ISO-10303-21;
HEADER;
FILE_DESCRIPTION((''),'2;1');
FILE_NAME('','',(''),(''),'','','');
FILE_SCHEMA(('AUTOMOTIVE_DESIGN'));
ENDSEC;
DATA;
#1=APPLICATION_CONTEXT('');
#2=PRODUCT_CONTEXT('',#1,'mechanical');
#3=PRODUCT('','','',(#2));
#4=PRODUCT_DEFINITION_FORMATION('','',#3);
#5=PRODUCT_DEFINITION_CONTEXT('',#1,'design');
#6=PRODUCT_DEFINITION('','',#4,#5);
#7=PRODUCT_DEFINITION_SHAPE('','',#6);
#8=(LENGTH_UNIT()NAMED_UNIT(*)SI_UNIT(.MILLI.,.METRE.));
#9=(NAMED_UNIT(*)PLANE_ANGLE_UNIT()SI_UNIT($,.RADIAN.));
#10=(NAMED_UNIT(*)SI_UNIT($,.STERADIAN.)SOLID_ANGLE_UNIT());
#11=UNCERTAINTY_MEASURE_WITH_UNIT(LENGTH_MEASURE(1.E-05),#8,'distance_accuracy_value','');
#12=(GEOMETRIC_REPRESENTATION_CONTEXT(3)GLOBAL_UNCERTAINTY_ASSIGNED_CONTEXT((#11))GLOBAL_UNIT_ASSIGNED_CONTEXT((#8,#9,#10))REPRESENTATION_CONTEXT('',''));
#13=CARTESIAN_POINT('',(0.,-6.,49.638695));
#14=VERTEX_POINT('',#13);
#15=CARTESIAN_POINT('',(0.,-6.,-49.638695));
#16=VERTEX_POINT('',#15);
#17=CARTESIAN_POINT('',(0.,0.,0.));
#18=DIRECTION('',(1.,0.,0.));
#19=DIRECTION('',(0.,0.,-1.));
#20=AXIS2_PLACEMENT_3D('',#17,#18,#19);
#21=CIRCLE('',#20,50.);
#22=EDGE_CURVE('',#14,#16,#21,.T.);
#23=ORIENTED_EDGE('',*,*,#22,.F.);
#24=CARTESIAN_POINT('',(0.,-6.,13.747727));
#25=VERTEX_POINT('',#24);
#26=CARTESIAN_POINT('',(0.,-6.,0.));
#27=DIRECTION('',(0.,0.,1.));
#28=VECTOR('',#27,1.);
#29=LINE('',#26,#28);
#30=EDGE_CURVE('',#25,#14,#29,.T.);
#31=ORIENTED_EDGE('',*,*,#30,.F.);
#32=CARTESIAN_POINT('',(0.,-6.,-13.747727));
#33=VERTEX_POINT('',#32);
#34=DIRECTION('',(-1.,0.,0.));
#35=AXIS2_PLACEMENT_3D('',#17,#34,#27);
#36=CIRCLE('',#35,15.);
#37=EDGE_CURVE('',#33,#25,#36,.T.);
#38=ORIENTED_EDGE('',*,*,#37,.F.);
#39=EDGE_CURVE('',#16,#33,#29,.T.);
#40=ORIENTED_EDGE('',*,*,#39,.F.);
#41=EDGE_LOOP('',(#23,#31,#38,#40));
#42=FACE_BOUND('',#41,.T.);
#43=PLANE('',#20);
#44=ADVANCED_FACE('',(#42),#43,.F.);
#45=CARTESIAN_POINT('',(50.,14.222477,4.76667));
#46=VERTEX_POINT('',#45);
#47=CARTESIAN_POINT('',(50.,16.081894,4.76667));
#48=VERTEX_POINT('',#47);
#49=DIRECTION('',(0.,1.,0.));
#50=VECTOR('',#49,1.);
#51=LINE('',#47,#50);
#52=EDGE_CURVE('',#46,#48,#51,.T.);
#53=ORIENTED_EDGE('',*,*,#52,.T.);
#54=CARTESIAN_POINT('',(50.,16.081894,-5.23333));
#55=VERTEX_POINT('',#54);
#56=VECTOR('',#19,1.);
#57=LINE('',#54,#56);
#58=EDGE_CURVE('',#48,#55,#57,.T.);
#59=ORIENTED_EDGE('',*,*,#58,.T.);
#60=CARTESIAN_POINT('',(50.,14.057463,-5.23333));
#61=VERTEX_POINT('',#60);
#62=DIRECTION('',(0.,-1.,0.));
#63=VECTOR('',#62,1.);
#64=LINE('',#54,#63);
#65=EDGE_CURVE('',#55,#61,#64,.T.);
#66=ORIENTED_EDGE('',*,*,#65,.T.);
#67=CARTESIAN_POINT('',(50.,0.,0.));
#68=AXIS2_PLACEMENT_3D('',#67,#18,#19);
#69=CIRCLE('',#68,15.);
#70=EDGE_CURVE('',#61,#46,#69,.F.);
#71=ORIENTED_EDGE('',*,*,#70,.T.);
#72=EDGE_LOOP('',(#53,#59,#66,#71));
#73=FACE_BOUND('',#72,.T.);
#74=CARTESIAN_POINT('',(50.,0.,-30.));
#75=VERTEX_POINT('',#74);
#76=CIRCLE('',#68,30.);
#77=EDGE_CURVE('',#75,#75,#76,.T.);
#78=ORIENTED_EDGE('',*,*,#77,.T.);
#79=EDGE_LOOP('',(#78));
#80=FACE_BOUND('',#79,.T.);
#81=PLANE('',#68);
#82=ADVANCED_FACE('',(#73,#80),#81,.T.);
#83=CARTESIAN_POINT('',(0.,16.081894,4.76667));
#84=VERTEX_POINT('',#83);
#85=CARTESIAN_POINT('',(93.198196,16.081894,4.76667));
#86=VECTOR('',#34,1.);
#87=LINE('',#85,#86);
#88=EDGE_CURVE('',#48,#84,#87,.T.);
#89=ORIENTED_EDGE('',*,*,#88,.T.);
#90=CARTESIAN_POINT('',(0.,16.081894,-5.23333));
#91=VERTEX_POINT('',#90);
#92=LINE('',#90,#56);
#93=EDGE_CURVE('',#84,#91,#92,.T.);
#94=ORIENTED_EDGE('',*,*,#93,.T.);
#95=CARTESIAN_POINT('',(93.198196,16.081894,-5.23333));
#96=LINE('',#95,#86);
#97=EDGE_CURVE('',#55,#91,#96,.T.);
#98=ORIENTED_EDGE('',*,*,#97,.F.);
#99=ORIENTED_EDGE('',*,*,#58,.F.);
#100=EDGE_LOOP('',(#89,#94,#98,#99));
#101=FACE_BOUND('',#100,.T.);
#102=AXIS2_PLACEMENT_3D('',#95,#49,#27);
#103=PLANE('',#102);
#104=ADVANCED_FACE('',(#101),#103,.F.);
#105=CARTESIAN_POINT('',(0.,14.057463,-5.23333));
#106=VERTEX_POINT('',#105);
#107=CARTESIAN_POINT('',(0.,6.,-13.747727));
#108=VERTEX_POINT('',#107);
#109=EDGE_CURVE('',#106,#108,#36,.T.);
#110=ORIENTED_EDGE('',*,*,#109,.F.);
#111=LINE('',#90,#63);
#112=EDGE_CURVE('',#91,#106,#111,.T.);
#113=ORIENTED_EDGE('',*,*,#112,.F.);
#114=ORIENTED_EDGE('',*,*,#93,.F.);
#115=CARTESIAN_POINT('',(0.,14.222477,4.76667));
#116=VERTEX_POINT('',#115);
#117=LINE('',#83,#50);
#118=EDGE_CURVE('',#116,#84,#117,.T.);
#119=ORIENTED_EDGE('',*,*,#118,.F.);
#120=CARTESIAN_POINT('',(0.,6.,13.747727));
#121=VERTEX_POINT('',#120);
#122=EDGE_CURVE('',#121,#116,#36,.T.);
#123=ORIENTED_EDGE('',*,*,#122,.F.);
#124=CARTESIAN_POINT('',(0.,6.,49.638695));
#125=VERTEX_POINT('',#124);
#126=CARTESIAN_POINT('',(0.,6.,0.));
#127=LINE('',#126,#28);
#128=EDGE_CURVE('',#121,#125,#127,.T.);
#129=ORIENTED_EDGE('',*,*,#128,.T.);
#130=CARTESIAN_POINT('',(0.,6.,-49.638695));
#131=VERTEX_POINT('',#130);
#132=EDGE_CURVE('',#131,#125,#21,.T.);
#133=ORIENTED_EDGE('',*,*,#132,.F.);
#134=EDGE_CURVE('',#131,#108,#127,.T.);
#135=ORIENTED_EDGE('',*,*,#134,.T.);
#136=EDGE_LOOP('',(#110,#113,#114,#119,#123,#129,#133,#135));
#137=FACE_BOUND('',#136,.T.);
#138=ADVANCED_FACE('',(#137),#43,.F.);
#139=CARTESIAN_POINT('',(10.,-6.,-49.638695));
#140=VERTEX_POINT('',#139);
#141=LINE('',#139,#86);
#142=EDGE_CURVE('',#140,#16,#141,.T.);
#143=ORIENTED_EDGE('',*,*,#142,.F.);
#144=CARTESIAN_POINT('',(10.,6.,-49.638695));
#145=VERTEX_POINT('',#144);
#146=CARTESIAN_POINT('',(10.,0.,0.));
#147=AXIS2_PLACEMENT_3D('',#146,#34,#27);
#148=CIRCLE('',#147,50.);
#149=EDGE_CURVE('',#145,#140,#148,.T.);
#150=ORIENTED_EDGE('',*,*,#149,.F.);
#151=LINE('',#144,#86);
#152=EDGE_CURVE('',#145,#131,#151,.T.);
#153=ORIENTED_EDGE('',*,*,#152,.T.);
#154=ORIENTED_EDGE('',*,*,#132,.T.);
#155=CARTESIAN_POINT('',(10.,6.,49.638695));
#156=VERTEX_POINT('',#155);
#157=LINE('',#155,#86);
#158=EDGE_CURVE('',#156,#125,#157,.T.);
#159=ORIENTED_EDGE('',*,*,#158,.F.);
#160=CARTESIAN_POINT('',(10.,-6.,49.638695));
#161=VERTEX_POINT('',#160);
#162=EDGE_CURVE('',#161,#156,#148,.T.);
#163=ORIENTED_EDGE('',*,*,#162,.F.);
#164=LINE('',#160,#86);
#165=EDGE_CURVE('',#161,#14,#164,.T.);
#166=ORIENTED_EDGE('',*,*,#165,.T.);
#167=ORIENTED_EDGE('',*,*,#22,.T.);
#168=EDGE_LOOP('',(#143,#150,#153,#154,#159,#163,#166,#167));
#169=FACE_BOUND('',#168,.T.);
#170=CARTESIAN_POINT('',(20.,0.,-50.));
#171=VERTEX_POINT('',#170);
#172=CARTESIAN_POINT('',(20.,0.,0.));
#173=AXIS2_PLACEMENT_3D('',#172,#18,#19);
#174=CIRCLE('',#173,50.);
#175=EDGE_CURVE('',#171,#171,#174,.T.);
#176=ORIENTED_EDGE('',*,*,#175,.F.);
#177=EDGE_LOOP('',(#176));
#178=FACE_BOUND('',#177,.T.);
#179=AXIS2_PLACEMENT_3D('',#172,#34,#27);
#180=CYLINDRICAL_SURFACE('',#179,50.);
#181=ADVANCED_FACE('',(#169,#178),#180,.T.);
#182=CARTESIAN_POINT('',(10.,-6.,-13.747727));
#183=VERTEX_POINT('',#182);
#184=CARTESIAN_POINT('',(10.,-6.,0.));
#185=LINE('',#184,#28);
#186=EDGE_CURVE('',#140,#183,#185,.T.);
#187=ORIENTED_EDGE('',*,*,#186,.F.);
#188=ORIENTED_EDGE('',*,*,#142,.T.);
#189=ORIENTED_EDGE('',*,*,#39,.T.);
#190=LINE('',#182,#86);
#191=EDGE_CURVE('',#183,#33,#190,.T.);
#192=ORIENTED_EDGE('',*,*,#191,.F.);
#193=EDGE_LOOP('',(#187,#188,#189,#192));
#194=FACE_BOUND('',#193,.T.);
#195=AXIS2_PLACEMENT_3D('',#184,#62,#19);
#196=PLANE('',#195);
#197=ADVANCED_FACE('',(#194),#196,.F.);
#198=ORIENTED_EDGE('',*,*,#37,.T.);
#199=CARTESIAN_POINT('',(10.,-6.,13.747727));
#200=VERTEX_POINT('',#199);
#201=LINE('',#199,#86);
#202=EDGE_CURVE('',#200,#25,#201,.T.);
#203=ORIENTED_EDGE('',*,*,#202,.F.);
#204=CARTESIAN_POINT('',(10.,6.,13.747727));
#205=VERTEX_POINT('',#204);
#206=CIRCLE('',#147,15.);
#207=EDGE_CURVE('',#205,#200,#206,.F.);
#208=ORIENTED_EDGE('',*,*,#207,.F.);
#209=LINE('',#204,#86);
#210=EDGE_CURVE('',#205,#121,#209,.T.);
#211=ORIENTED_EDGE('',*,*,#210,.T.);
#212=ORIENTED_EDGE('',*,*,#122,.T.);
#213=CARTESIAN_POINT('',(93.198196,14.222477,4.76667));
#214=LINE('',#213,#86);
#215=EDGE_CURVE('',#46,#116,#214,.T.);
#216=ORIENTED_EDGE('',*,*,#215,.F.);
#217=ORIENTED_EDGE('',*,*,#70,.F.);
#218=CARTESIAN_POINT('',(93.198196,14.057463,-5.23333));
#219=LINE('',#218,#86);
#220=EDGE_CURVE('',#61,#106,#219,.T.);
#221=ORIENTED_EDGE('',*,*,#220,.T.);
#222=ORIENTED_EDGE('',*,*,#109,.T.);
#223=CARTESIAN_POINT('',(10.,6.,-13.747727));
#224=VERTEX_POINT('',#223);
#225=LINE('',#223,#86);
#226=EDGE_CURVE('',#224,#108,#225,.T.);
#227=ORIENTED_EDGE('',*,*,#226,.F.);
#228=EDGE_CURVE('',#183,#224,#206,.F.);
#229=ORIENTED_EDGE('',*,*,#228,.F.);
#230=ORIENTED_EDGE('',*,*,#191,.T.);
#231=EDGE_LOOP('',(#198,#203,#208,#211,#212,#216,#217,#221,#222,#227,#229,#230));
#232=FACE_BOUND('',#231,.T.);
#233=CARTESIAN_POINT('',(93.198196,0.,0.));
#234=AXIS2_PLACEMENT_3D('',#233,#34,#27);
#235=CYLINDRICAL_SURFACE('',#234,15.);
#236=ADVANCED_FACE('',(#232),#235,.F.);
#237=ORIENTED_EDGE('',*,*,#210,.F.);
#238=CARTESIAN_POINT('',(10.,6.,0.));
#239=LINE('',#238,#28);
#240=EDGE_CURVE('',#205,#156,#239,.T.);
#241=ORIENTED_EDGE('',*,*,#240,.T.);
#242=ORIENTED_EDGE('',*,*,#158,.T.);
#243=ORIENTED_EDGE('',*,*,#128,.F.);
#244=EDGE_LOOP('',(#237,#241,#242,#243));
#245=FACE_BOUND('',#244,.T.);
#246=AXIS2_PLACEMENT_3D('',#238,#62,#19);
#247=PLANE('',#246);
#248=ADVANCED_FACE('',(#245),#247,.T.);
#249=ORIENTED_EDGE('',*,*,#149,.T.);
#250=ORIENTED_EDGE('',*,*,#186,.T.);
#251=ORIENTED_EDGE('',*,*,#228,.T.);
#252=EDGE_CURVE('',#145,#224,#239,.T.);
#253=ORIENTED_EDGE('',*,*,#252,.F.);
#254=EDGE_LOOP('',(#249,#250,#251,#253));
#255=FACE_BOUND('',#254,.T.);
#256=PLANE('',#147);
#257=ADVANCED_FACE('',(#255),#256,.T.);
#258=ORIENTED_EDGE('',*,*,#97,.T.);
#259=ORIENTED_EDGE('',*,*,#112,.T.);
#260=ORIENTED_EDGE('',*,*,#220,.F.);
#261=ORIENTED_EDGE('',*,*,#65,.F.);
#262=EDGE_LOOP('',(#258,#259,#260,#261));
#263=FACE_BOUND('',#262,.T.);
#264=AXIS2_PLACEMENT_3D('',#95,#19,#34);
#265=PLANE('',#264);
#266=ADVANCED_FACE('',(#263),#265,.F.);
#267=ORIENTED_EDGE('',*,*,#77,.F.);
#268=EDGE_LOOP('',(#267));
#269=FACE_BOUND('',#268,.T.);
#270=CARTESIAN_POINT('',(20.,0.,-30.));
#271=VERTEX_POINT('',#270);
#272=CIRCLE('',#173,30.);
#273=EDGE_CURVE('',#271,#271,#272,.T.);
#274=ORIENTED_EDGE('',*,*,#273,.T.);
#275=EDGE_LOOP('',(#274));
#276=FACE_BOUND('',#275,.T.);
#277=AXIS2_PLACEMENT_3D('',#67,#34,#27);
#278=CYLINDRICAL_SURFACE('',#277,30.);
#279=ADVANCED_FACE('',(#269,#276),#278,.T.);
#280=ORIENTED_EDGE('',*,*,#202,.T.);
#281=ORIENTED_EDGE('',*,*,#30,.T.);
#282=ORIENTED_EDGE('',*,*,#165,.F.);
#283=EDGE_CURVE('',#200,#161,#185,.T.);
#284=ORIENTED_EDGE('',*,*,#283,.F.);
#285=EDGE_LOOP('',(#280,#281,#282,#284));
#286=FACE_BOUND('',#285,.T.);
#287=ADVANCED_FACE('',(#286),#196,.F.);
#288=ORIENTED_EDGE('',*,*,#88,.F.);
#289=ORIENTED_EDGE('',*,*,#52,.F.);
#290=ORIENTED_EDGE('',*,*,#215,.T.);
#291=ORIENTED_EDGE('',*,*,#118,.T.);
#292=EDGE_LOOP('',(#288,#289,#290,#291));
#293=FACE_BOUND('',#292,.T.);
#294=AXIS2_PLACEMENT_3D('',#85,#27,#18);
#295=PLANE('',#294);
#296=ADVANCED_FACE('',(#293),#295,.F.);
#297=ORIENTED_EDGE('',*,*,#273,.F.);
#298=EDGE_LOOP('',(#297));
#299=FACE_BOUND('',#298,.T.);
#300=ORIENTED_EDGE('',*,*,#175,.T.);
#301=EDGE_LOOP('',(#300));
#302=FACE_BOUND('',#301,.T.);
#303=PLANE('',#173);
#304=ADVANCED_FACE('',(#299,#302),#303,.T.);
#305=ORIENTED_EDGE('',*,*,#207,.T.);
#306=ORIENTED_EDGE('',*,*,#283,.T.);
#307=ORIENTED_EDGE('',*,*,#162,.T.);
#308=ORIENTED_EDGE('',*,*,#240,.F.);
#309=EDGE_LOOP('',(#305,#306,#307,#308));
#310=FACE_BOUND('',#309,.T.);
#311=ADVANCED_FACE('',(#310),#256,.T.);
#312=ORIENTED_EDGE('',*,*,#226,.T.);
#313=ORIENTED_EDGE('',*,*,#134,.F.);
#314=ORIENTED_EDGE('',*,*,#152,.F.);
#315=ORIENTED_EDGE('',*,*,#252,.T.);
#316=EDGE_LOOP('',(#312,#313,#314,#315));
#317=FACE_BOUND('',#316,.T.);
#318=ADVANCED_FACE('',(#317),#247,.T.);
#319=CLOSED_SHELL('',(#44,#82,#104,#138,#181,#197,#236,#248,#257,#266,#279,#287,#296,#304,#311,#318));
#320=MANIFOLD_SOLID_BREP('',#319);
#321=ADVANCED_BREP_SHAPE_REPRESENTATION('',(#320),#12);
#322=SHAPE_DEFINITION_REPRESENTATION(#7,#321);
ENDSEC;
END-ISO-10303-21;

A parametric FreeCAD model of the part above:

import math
import FreeCAD as App
import Part
import Sketcher

doc = App.newDocument("Part")
params = doc.addObject("Spreadsheet::Sheet", "Params")
for row, (alias, value) in enumerate([
    ("sketch1_diameter", "100 mm"),
    ("pad1_length", "20 mm"),
    ("sketch2_diameter", "60 mm"),
    ("pad2_length", "30 mm"),
    ("sketch3_radius", "15 mm"),
    ("sketch3_height", "10 mm"),
    ("pocket1_length", "50 mm"),
    ("sketch4_radius", "50 mm"),
    ("sketch4_radius2", "15 mm"),
    ("pocket2_length", "10 mm"),
], start=1):
    params.set(f"A{row}", alias)
    params.set(f"B{row}", "=" + value)
    params.setAlias(f"B{row}", alias)

body = doc.addObject("PartDesign::Body", "Body")

# Sketch on YZ plane
sketch1 = doc.addObject("Sketcher::SketchObject", "Sketch")
body.addObject(sketch1)
sketch1.AttachmentSupport = (doc.YZ_Plane, [""])
sketch1.MapMode = "FlatFace"
sketch1.addGeometry(Part.Circle(App.Vector(0, 0, 0), App.Vector(0, 0, 1), 50), False)
sketch1.addConstraint(Sketcher.Constraint("Coincident", 0, 3, -1, 1))
sketch1.addConstraint(Sketcher.Constraint("Diameter", 0, 100.0))
sketch1.setExpression("Constraints[1]", "Params.sketch1_diameter")
pad1 = doc.addObject("PartDesign::Pad", "Pad")
body.addObject(pad1)
pad1.Profile = sketch1
pad1.setExpression("Length", "Params.pad1_length")

# Sketch on YZ plane
sketch2 = doc.addObject("Sketcher::SketchObject", "Sketch001")
body.addObject(sketch2)
sketch2.AttachmentSupport = (doc.YZ_Plane, [""])
sketch2.MapMode = "FlatFace"
sketch2.AttachmentOffset = App.Placement(App.Vector(0, 0, 20), App.Rotation())
sketch2.addGeometry(Part.Circle(App.Vector(0, 0, 0), App.Vector(0, 0, 1), 30), False)
sketch2.addConstraint(Sketcher.Constraint("Coincident", 0, 3, -1, 1))
sketch2.addConstraint(Sketcher.Constraint("Diameter", 0, 60.0))
sketch2.setExpression("Constraints[1]", "Params.sketch2_diameter")
pad2 = doc.addObject("PartDesign::Pad", "Pad001")
body.addObject(pad2)
pad2.Profile = sketch2
pad2.setExpression("Length", "Params.pad2_length")

# Sketch on YZ plane
sketch3 = doc.addObject("Sketcher::SketchObject", "Sketch002")
body.addObject(sketch3)
sketch3.AttachmentSupport = (doc.YZ_Plane, [""])
sketch3.MapMode = "FlatFace"
sketch3.addGeometry(Part.LineSegment(App.Vector(16.1, 4.8, 0), App.Vector(16.1, -5.2, 0)), False)
sketch3.addGeometry(Part.LineSegment(App.Vector(16.1, -5.2, 0), App.Vector(14.1, -5.2, 0)), False)
sketch3.addGeometry(Part.ArcOfCircle(Part.Circle(App.Vector(0, 0, 0), App.Vector(0, 0, 1), 15), math.radians(19), math.radians(340)), False)
sketch3.addGeometry(Part.LineSegment(App.Vector(14.2, 4.8, 0), App.Vector(16.1, 4.8, 0)), False)
sketch3.addConstraint(Sketcher.Constraint("Coincident", 0, 2, 1, 1))
sketch3.addConstraint(Sketcher.Constraint("Coincident", 1, 2, 2, 2))
sketch3.addConstraint(Sketcher.Constraint("Coincident", 2, 1, 3, 1))
sketch3.addConstraint(Sketcher.Constraint("Coincident", 3, 2, 0, 1))
sketch3.addConstraint(Sketcher.Constraint("Vertical", 0))
sketch3.addConstraint(Sketcher.Constraint("Horizontal", 1))
sketch3.addConstraint(Sketcher.Constraint("Horizontal", 3))
sketch3.addConstraint(Sketcher.Constraint("Coincident", 2, 3, -1, 1))
sketch3.addConstraint(Sketcher.Constraint("Radius", 2, 15.0))
sketch3.addConstraint(Sketcher.Constraint("DistanceY", 0, 2, 0, 1, 10.0))
sketch3.addConstraint(Sketcher.Constraint("DistanceX", 1, 2, 1, 1, 2.024431))
sketch3.addConstraint(Sketcher.Constraint("DistanceX", 3, 1, 3, 2, 1.859417))
sketch3.setExpression("Constraints[8]", "Params.sketch3_radius")
sketch3.setExpression("Constraints[9]", "Params.sketch3_height")
pocket1 = doc.addObject("PartDesign::Pocket", "Pocket")
body.addObject(pocket1)
pocket1.Profile = sketch3
pocket1.setExpression("Length", "Params.pocket1_length")
pocket1.Reversed = True

# Sketch on YZ plane
sketch4 = doc.addObject("Sketcher::SketchObject", "Sketch003")
body.addObject(sketch4)
sketch4.AttachmentSupport = (doc.YZ_Plane, [""])
sketch4.MapMode = "FlatFace"
sketch4.addGeometry(Part.LineSegment(App.Vector(6, -14, 0), App.Vector(6, -50, 0)), False)
sketch4.addGeometry(Part.ArcOfCircle(Part.Circle(App.Vector(0, 0, 0), App.Vector(0, 0, 1), 50), math.radians(-96.89), math.radians(-83.11)), False)
sketch4.addGeometry(Part.LineSegment(App.Vector(-6, -50, 0), App.Vector(-6, -14, 0)), False)
sketch4.addGeometry(Part.ArcOfCircle(Part.Circle(App.Vector(0, 0, 0), App.Vector(0, 0, 1), 15), math.radians(-114), math.radians(-66)), False)
sketch4.addGeometry(Part.ArcOfCircle(Part.Circle(App.Vector(0, 0, 0), App.Vector(0, 0, 1), 50), math.radians(83.11), math.radians(90)), False)
sketch4.addGeometry(Part.LineSegment(App.Vector(6, 50, 0), App.Vector(6, 14, 0)), False)
sketch4.addGeometry(Part.ArcOfCircle(Part.Circle(App.Vector(0, 0, 0), App.Vector(0, 0, 1), 15), math.radians(66), math.radians(114)), False)
sketch4.addGeometry(Part.LineSegment(App.Vector(-6, 14, 0), App.Vector(-6, 50, 0)), False)
sketch4.addGeometry(Part.ArcOfCircle(Part.Circle(App.Vector(0, 0, 0), App.Vector(0, 0, 1), 50), math.radians(90), math.radians(96.89)), False)
sketch4.addConstraint(Sketcher.Constraint("Coincident", 0, 2, 1, 2))
sketch4.addConstraint(Sketcher.Constraint("Coincident", 1, 1, 2, 1))
sketch4.addConstraint(Sketcher.Constraint("Coincident", 2, 2, 3, 1))
sketch4.addConstraint(Sketcher.Constraint("Coincident", 3, 2, 0, 1))
sketch4.addConstraint(Sketcher.Constraint("Coincident", 4, 1, 5, 1))
sketch4.addConstraint(Sketcher.Constraint("Coincident", 5, 2, 6, 1))
sketch4.addConstraint(Sketcher.Constraint("Coincident", 6, 2, 7, 1))
sketch4.addConstraint(Sketcher.Constraint("Coincident", 7, 2, 8, 2))
sketch4.addConstraint(Sketcher.Constraint("Tangent", 8, 1, 4, 2))
sketch4.addConstraint(Sketcher.Constraint("Vertical", 0))
sketch4.addConstraint(Sketcher.Constraint("Vertical", 2))
sketch4.addConstraint(Sketcher.Constraint("Vertical", 5))
sketch4.addConstraint(Sketcher.Constraint("Vertical", 7))
sketch4.addConstraint(Sketcher.Constraint("Coincident", 1, 3, -1, 1))
sketch4.addConstraint(Sketcher.Constraint("Coincident", 3, 3, -1, 1))
sketch4.addConstraint(Sketcher.Constraint("Coincident", 4, 3, -1, 1))
sketch4.addConstraint(Sketcher.Constraint("Coincident", 6, 3, -1, 1))
sketch4.addConstraint(Sketcher.Constraint("Equal", 1, 4))
sketch4.addConstraint(Sketcher.Constraint("Equal", 3, 6))
sketch4.addConstraint(Sketcher.Constraint("Equal", 4, 8))
sketch4.addConstraint(Sketcher.Constraint("PointOnObject", 8, 1, -2))
sketch4.addConstraint(Sketcher.Constraint("Horizontal", 0, 2, 1, 1))
sketch4.addConstraint(Sketcher.Constraint("Horizontal", 5, 2, 6, 2))
sketch4.addConstraint(Sketcher.Constraint("Vertical", 3, 2, 4, 1))
sketch4.addConstraint(Sketcher.Constraint("Radius", 1, 50.0))
sketch4.addConstraint(Sketcher.Constraint("Radius", 3, 15.0))
sketch4.addConstraint(Sketcher.Constraint("DistanceX", -1, 1, 0, 2, 6.0))
sketch4.setExpression("Constraints[24]", "Params.sketch4_radius")
sketch4.setExpression("Constraints[25]", "Params.sketch4_radius2")
pocket2 = doc.addObject("PartDesign::Pocket", "Pocket001")
body.addObject(pocket2)
pocket2.Profile = sketch4
pocket2.setExpression("Length", "Params.pocket2_length")
pocket2.Reversed = True

doc.recompute()
